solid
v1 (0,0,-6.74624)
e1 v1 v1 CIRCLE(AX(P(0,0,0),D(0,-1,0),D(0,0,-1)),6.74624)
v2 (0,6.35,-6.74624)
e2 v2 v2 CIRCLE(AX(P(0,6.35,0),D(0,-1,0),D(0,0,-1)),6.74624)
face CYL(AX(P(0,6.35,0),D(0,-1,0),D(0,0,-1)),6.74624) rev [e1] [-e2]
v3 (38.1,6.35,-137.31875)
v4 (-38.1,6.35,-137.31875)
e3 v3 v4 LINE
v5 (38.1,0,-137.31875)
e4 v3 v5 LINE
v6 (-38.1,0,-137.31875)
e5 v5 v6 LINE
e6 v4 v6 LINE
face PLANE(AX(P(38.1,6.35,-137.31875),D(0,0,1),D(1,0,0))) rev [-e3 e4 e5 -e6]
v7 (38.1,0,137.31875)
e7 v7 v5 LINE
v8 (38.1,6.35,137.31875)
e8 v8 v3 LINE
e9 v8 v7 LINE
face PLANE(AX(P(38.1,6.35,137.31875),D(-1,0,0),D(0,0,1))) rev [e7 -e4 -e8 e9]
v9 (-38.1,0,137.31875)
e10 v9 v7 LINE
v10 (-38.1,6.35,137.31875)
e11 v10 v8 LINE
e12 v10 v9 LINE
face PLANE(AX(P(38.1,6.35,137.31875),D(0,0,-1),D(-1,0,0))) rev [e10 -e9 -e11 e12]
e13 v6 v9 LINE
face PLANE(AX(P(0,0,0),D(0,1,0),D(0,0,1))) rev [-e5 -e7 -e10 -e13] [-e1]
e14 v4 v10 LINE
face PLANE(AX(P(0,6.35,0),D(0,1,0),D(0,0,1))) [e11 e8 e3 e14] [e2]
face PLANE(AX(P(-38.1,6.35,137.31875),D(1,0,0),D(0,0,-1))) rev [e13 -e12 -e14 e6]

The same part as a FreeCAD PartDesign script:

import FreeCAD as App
import Part
import Sketcher
Q = App.Units.Quantity

doc = App.newDocument("Part")
body = doc.addObject("PartDesign::Body", "Body")

# Sketch on XZ plane
sketch1 = body.newObject("Sketcher::SketchObject", "Sketch")
sketch1.AttachmentSupport = (doc.getObject("XZ_Plane"), [""])
sketch1.MapMode = "FlatFace"
sketch1.addGeometry(Part.LineSegment(App.Vector(-38.1, -137.31875, 0), App.Vector(-38.1, 137.31875, 0)), False)
sketch1.addGeometry(Part.LineSegment(App.Vector(-38.1, 137.31875, 0), App.Vector(38.1, 137.31875, 0)), False)
sketch1.addGeometry(Part.LineSegment(App.Vector(38.1, 137.31875, 0), App.Vector(38.1, -137.31875, 0)), False)
sketch1.addGeometry(Part.LineSegment(App.Vector(38.1, -137.31875, 0), App.Vector(-38.1, -137.31875, 0)), False)
sketch1.addConstraint(Sketcher.Constraint("Coincident", 0, 2, 1, 1))
sketch1.addConstraint(Sketcher.Constraint("Coincident", 1, 2, 2, 1))
sketch1.addConstraint(Sketcher.Constraint("Coincident", 2, 2, 3, 1))
sketch1.addConstraint(Sketcher.Constraint("Coincident", 3, 2, 0, 1))
sketch1.addConstraint(Sketcher.Constraint("Vertical", 0))
sketch1.addConstraint(Sketcher.Constraint("Horizontal", 1))
sketch1.addConstraint(Sketcher.Constraint("Vertical", 2))
sketch1.addConstraint(Sketcher.Constraint("Horizontal", 3))
sketch1.addConstraint(Sketcher.Constraint("Symmetric", 0, 2, 2, 2, -1, 1))
sketch1.addConstraint(Sketcher.Constraint("DistanceX", 1, 1, 1, 2, Q("3 in")))
sketch1.addConstraint(Sketcher.Constraint("DistanceY", 0, 1, 0, 2, Q("10.8125 in")))
pad1 = body.newObject("PartDesign::Pad", "Pad")
pad1.Profile = sketch1
pad1.Length = Q("0.25 in")
pad1.Reversed = True

# Sketch on XZ plane
sketch2 = body.newObject("Sketcher::SketchObject", "Sketch001")
sketch2.AttachmentSupport = (doc.getObject("XZ_Plane"), [""])
sketch2.MapMode = "FlatFace"
sketch2.addGeometry(Part.Circle(App.Vector(0, 0, 0), App.Vector(0, 0, 1), 6.74624), False)
sketch2.addConstraint(Sketcher.Constraint("Coincident", 0, 3, -1, 1))
sketch2.addConstraint(Sketcher.Constraint("Diameter", 0, Q("0.5312 in")))
pocket1 = body.newObject("PartDesign::Pocket", "Pocket")
pocket1.Profile = sketch2
pocket1.Type = "ThroughAll"

doc.recompute()
